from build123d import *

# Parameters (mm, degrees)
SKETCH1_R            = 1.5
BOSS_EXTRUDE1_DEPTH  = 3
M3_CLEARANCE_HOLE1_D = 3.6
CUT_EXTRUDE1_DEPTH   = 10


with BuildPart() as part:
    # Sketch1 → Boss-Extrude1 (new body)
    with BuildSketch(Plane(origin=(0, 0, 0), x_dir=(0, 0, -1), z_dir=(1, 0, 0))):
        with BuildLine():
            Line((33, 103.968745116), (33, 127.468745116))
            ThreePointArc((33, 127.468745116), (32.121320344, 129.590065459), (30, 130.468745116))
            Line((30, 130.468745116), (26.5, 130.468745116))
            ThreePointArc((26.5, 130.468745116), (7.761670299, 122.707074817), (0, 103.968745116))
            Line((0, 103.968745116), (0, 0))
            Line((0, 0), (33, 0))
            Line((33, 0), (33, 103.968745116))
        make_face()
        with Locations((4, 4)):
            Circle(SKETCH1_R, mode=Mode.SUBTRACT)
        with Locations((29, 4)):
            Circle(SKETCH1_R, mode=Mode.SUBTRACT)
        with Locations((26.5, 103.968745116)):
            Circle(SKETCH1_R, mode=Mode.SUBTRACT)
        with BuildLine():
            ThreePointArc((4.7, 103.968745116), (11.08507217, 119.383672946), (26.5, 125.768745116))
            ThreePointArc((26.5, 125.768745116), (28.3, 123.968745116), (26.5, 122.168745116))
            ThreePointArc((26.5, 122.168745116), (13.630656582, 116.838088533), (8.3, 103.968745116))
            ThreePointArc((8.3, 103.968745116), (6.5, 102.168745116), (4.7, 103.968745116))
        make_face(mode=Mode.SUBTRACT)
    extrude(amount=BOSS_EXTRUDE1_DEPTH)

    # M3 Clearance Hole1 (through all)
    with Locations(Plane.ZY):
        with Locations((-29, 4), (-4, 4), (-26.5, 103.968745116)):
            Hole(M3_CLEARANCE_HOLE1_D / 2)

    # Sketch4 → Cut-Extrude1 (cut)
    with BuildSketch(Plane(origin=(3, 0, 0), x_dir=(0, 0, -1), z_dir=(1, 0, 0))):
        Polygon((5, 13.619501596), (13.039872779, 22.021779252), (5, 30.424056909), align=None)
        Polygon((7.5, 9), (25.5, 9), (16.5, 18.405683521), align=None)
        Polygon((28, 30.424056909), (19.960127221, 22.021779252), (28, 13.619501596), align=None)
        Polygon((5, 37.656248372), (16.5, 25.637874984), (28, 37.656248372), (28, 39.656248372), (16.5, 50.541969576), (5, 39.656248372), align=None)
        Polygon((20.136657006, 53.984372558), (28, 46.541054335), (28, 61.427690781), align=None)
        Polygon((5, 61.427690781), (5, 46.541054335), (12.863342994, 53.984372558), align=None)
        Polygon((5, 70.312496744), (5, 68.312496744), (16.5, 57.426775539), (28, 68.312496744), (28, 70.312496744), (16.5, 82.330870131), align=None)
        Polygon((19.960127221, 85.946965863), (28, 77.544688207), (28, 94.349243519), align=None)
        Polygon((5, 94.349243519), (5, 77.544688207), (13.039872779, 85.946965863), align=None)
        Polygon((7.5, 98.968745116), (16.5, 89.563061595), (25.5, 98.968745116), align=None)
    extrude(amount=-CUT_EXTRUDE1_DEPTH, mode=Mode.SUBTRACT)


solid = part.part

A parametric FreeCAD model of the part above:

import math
import FreeCAD as App
import Part
import Sketcher
from FreeCAD import Vector
Q = App.Units.Quantity


def add_polygon(sketch, points):
    """Adds a closed chain of lines whose ends are joined by coincident constraints."""
    first, n = sketch.GeometryCount, len(points)
    for a, b in zip(points, points[1:] + points[:1]):
        sketch.addGeometry(Part.LineSegment(App.Vector(*a, 0), App.Vector(*b, 0)), False)
    for i in range(n):
        sketch.addConstraint(Sketcher.Constraint("Coincident", first + i, 2, first + (i + 1) % n, 1))

doc = App.newDocument("Part")
body = doc.addObject("PartDesign::Body", "Body")

sketch1 = body.newObject("Sketcher::SketchObject", "Sketch")
sketch1.AttachmentSupport = (doc.getObject("YZ_Plane"), [""])
sketch1.MapMode = "FlatFace"
sketch1.addGeometry(Part.ArcOfCircle(Part.Circle(Vector(127.468745, -30, 0), Vector(0, 0, 1), 3), math.radians(-90), math.radians(0)), False)
sketch1.addGeometry(Part.LineSegment(Vector(130.468745, -30, 0), Vector(130.468745, -26.5, 0)), False)
sketch1.addGeometry(Part.ArcOfCircle(Part.Circle(Vector(103.968745, -26.5, 0), Vector(0, 0, 1), 26.5), math.radians(0), math.radians(90)), False)
sketch1.addGeometry(Part.LineSegment(Vector(103.968745, 0, 0), Vector(0, 0, 0)), False)
sketch1.addGeometry(Part.LineSegment(Vector(0, 0, 0), Vector(0, -33, 0)), False)
sketch1.addGeometry(Part.LineSegment(Vector(0, -33, 0), Vector(127.468745, -33, 0)), False)
sketch1.addGeometry(Part.Circle(Vector(4, -4, 0), Vector(0, 0, 1), 1.5), False)
sketch1.addGeometry(Part.Circle(Vector(4, -29, 0), Vector(0, 0, 1), 1.5), False)
sketch1.addGeometry(Part.ArcOfCircle(Part.Circle(Vector(103.968745, -6.5, 0), Vector(0, 0, 1), 1.8), math.radians(90), math.radians(270)), False)
sketch1.addGeometry(Part.ArcOfCircle(Part.Circle(Vector(103.968745, -26.5, 0), Vector(0, 0, 1), 21.8), math.radians(0), math.radians(90)), False)
sketch1.addGeometry(Part.ArcOfCircle(Part.Circle(Vector(123.968745, -26.5, 0), Vector(0, 0, 1), 1.8), math.radians(180), math.radians(360)), False)
sketch1.addGeometry(Part.ArcOfCircle(Part.Circle(Vector(103.968745, -26.5, 0), Vector(0, 0, 1), 18.2), math.radians(0), math.radians(90)), False)
sketch1.addGeometry(Part.Circle(Vector(103.968745, -26.5, 0), Vector(0, 0, 1), 1.5), False)
sketch1.addConstraint(Sketcher.Constraint("Tangent", 0, 2, 1, 1))
sketch1.addConstraint(Sketcher.Constraint("Tangent", 1, 2, 2, 1))
sketch1.addConstraint(Sketcher.Constraint("Tangent", 2, 2, 3, 1))
sketch1.addConstraint(Sketcher.Constraint("Coincident", 3, 2, 4, 1))
sketch1.addConstraint(Sketcher.Constraint("Coincident", 4, 2, 5, 1))
sketch1.addConstraint(Sketcher.Constraint("Tangent", 5, 2, 0, 1))
sketch1.addConstraint(Sketcher.Constraint("Tangent", 8, 1, 9, 2))
sketch1.addConstraint(Sketcher.Constraint("Tangent", 9, 1, 10, 2))
sketch1.addConstraint(Sketcher.Constraint("Tangent", 10, 1, 11, 1))
sketch1.addConstraint(Sketcher.Constraint("Tangent", 11, 2, 8, 2))
sketch1.addConstraint(Sketcher.Constraint("Vertical", 1))
sketch1.addConstraint(Sketcher.Constraint("Horizontal", 3))
sketch1.addConstraint(Sketcher.Constraint("Vertical", 4))
sketch1.addConstraint(Sketcher.Constraint("Horizontal", 5))
sketch1.addConstraint(Sketcher.Constraint("Coincident", 3, 2, -1, 1))
sketch1.addConstraint(Sketcher.Constraint("Coincident", 9, 3, 2, 3))
sketch1.addConstraint(Sketcher.Constraint("Coincident", 11, 3, 2, 3))
sketch1.addConstraint(Sketcher.Constraint("Coincident", 12, 3, 2, 3))
sketch1.addConstraint(Sketcher.Constraint("Equal", 6, 7))
sketch1.addConstraint(Sketcher.Constraint("Equal", 7, 12))
sketch1.addConstraint(Sketcher.Constraint("Horizontal", 9, 3, 10, 3))
sketch1.addConstraint(Sketcher.Constraint("Vertical", 6, 3, 7, 3))
sketch1.addConstraint(Sketcher.Constraint("Vertical", 2, 3, 8, 3))
sketch1.addConstraint(Sketcher.Constraint("Diameter", 6, Q("3 mm")))
sketch1.addConstraint(Sketcher.Constraint("Radius", 0, Q("3 mm")))
sketch1.addConstraint(Sketcher.Constraint("Radius", 2, Q("26.5 mm")))
sketch1.addConstraint(Sketcher.Constraint("Radius", 8, Q("1.8 mm")))
sketch1.addConstraint(Sketcher.Constraint("Radius", 9, Q("21.8 mm")))
sketch1.addConstraint(Sketcher.Constraint("DistanceY", 4, 2, 4, 1, Q("33 mm")))
sketch1.addConstraint(Sketcher.Constraint("DistanceX", -1, 1, 6, 3, Q("4 mm")))
sketch1.addConstraint(Sketcher.Constraint("DistanceY", 6, 3, -1, 1, Q("4 mm")))
sketch1.addConstraint(Sketcher.Constraint("DistanceY", 7, 3, -1, 1, Q("29 mm")))
sketch1.addConstraint(Sketcher.Constraint("DistanceX", 3, 2, 3, 1, Q("103.968745 mm")))
pad1 = body.newObject("PartDesign::Pad", "Pad")
pad1.Profile = sketch1
pad1.Length = 3

sketch2 = body.newObject("Sketcher::SketchObject", "Sketch001")
sketch2.AttachmentSupport = (doc.getObject("YZ_Plane"), [""])
sketch2.MapMode = "FlatFace"
sketch2.addGeometry(Part.Circle(Vector(4, -29, 0), Vector(0, 0, 1), 1.8), False)
sketch2.addGeometry(Part.Circle(Vector(4, -4, 0), Vector(0, 0, 1), 1.8), False)
sketch2.addGeometry(Part.Circle(Vector(103.968745, -26.5, 0), Vector(0, 0, 1), 1.8), False)
sketch2.addConstraint(Sketcher.Constraint("Equal", 0, 1))
sketch2.addConstraint(Sketcher.Constraint("Equal", 1, 2))
sketch2.addConstraint(Sketcher.Constraint("Vertical", 0, 3, 1, 3))
sketch2.addConstraint(Sketcher.Constraint("Diameter", 0, Q("3.6 mm")))
sketch2.addConstraint(Sketcher.Constraint("DistanceX", -1, 1, 0, 3, Q("4 mm")))
sketch2.addConstraint(Sketcher.Constraint("DistanceY", 0, 3, -1, 1, Q("29 mm")))
sketch2.addConstraint(Sketcher.Constraint("DistanceY", 1, 3, -1, 1, Q("4 mm")))
sketch2.addConstraint(Sketcher.Constraint("DistanceY", 2, 3, -1, 1, Q("26.5 mm")))
sketch2.addConstraint(Sketcher.Constraint("DistanceX", -1, 1, 2, 3, Q("103.968745 mm")))
doc.recompute()
hole = body.newObject("PartDesign::Hole", "Hole")
hole.Profile = sketch2
hole.ThreadType = "None"
hole.Diameter = 3.6
hole.DepthType = "ThroughAll"
hole.Reversed = True

sketch3 = body.newObject("Sketcher::SketchObject", "Sketch002")
sketch3.AttachmentSupport = (doc.getObject("YZ_Plane"), [""])
sketch3.MapMode = "FlatFace"
sketch3.AttachmentOffset = App.Placement(Vector(0, 0, 3), App.Rotation())
add_polygon(sketch3, [(13.619502, -5), (22.021779, -13.039873), (30.424057, -5)])
add_polygon(sketch3, [(9, -7.5), (9, -25.5), (18.405684, -16.5)])
add_polygon(sketch3, [(30.424057, -28), (22.021779, -19.960127), (13.619502, -28)])
add_polygon(sketch3, [(37.656248, -5), (25.637875, -16.5), (37.656248, -28), (39.656248, -28), (50.54197, -16.5), (39.656248, -5)])
add_polygon(sketch3, [(53.984373, -20.136657), (46.541054, -28), (61.427691, -28)])
add_polygon(sketch3, [(61.427691, -5), (46.541054, -5), (53.984373, -12.863343)])
add_polygon(sketch3, [(70.312497, -5), (68.312497, -5), (57.426776, -16.5), (68.312497, -28), (70.312497, -28), (82.33087, -16.5)])
add_polygon(sketch3, [(85.946966, -19.960127), (77.544688, -28), (94.349244, -28)])
add_polygon(sketch3, [(94.349244, -5), (77.544688, -5), (85.946966, -13.039873)])
add_polygon(sketch3, [(98.968745, -7.5), (89.563062, -16.5), (98.968745, -25.5)])
sketch3.addConstraint(Sketcher.Constraint("Horizontal", 2))
sketch3.addConstraint(Sketcher.Constraint("Vertical", 3))
sketch3.addConstraint(Sketcher.Constraint("Horizontal", 8))
sketch3.addConstraint(Sketcher.Constraint("Horizontal", 11))
sketch3.addConstraint(Sketcher.Constraint("Horizontal", 14))
sketch3.addConstraint(Sketcher.Constraint("Horizontal", 16))
sketch3.addConstraint(Sketcher.Constraint("Horizontal", 18))
sketch3.addConstraint(Sketcher.Constraint("Horizontal", 21))
sketch3.addConstraint(Sketcher.Constraint("Horizontal", 24))
sketch3.addConstraint(Sketcher.Constraint("Horizontal", 28))
sketch3.addConstraint(Sketcher.Constraint("Horizontal", 30))
sketch3.addConstraint(Sketcher.Constraint("Vertical", 35))
sketch3.addConstraint(Sketcher.Constraint("Parallel", 1, 4))
sketch3.addConstraint(Sketcher.Constraint("Parallel", 0, 5))
sketch3.addConstraint(Sketcher.Constraint("Parallel", 5, 6))
sketch3.addConstraint(Sketcher.Constraint("Parallel", 4, 7))
sketch3.addConstraint(Sketcher.Constraint("Parallel", 7, 9))
sketch3.addConstraint(Sketcher.Constraint("Parallel", 6, 10))
sketch3.addConstraint(Sketcher.Constraint("Parallel", 12, 15))
sketch3.addConstraint(Sketcher.Constraint("Parallel", 13, 17))
sketch3.addConstraint(Sketcher.Constraint("Parallel", 17, 19))
sketch3.addConstraint(Sketcher.Constraint("Parallel", 15, 20))
sketch3.addConstraint(Sketcher.Constraint("Parallel", 20, 22))
sketch3.addConstraint(Sketcher.Constraint("Parallel", 19, 23))
sketch3.addConstraint(Sketcher.Constraint("Parallel", 9, 25))
sketch3.addConstraint(Sketcher.Constraint("Parallel", 10, 26))
sketch3.addConstraint(Sketcher.Constraint("Parallel", 25, 27))
sketch3.addConstraint(Sketcher.Constraint("Parallel", 26, 29))
sketch3.addConstraint(Sketcher.Constraint("Parallel", 29, 31))
sketch3.addConstraint(Sketcher.Constraint("Parallel", 27, 32))
sketch3.addConstraint(Sketcher.Constraint("Parallel", 32, 33))
sketch3.addConstraint(Sketcher.Constraint("Parallel", 31, 34))
sketch3.addConstraint(Sketcher.Constraint("Horizontal", 4, 2, 9, 2))
sketch3.addConstraint(Sketcher.Constraint("Horizontal", 8, 2, 10, 2))
sketch3.addConstraint(Sketcher.Constraint("Horizontal", 9, 2, 12, 2))
sketch3.addConstraint(Sketcher.Constraint("Horizontal", 2, 2, 13, 2))
sketch3.addConstraint(Sketcher.Constraint("Horizontal", 11, 2, 15, 2))
sketch3.addConstraint(Sketcher.Constraint("Horizontal", 14, 2, 18, 2))
sketch3.addConstraint(Sketcher.Constraint("Horizontal", 20, 2, 21, 2))
sketch3.addConstraint(Sketcher.Constraint("Horizontal", 12, 2, 22, 2))
sketch3.addConstraint(Sketcher.Constraint("Horizontal", 16, 2, 23, 2))
sketch3.addConstraint(Sketcher.Constraint("Horizontal", 22, 2, 25, 2))
sketch3.addConstraint(Sketcher.Constraint("Horizontal", 24, 2, 27, 2))
sketch3.addConstraint(Sketcher.Constraint("Horizontal", 6, 2, 29, 2))
sketch3.addConstraint(Sketcher.Constraint("Horizontal", 26, 2, 30, 2))
sketch3.addConstraint(Sketcher.Constraint("Horizontal", 0, 2, 31, 2))
sketch3.addConstraint(Sketcher.Constraint("Horizontal", 25, 2, 33, 2))
sketch3.addConstraint(Sketcher.Constraint("Horizontal", 3, 2, 34, 2))
sketch3.addConstraint(Sketcher.Constraint("Horizontal", 5, 2, 35, 2))
sketch3.addConstraint(Sketcher.Constraint("Vertical", 0, 2, 6, 2))
sketch3.addConstraint(Sketcher.Constraint("Vertical", 2, 2, 7, 2))
sketch3.addConstraint(Sketcher.Constraint("Vertical", 11, 2, 13, 2))
sketch3.addConstraint(Sketcher.Constraint("Vertical", 10, 2, 14, 2))
sketch3.addConstraint(Sketcher.Constraint("Vertical", 15, 2, 18, 2))
sketch3.addConstraint(Sketcher.Constraint("Vertical", 17, 2, 19, 2))
sketch3.addConstraint(Sketcher.Constraint("Vertical", 27, 2, 30, 2))
sketch3.addConstraint(Sketcher.Constraint("Equal", 14, 21))
sketch3.addConstraint(Sketcher.Constraint("DistanceX", 11, 1, 11, 2, Q("2 mm")))
sketch3.addConstraint(Sketcher.Constraint("DistanceY", 3, 2, 3, 1, Q("18 mm")))
sketch3.addConstraint(Sketcher.Constraint("DistanceY", 1, 2, -1, 1, Q("5 mm")))
sketch3.addConstraint(Sketcher.Constraint("DistanceX", -1, 1, 3, 2, Q("9 mm")))
sketch3.addConstraint(Sketcher.Constraint("DistanceY", 7, 2, -1, 1, Q("28 mm")))
sketch3.addConstraint(Sketcher.Constraint("DistanceX", -1, 1, 2, 2, Q("13.619502 mm")))
sketch3.addConstraint(Sketcher.Constraint("DistanceX", 28, 2, 34, 2, Q("4.619502 mm")))
sketch3.addConstraint(Sketcher.Constraint("Distance", 0, Q("11.62918 mm")))
sketch3.addConstraint(Sketcher.Constraint("Distance", 9, Q("16.63404 mm")))
sketch3.addConstraint(Sketcher.Constraint("Distance", 15, Q("10.827518 mm")))
sketch3.addConstraint(Sketcher.Constraint("DistanceX", 16, 1, 16, 2, Q("14.886636 mm")))
sketch3.addConstraint(Sketcher.Constraint("DistanceX", -1, 1, 10, 2, Q("37.656248 mm")))
sketch3.addConstraint(Sketcher.Constraint("DistanceX", -1, 1, 16, 2, Q("61.427691 mm")))
sketch3.addConstraint(Sketcher.Constraint("DistanceX", -1, 1, 25, 2, Q("82.33087 mm")))
sketch3.addConstraint(Sketcher.Constraint("DistanceX", -1, 1, 27, 2, Q("77.544688 mm")))
pocket1 = body.newObject("PartDesign::Pocket", "Pocket")
pocket1.Profile = sketch3
pocket1.Length = 10

doc.recompute()
